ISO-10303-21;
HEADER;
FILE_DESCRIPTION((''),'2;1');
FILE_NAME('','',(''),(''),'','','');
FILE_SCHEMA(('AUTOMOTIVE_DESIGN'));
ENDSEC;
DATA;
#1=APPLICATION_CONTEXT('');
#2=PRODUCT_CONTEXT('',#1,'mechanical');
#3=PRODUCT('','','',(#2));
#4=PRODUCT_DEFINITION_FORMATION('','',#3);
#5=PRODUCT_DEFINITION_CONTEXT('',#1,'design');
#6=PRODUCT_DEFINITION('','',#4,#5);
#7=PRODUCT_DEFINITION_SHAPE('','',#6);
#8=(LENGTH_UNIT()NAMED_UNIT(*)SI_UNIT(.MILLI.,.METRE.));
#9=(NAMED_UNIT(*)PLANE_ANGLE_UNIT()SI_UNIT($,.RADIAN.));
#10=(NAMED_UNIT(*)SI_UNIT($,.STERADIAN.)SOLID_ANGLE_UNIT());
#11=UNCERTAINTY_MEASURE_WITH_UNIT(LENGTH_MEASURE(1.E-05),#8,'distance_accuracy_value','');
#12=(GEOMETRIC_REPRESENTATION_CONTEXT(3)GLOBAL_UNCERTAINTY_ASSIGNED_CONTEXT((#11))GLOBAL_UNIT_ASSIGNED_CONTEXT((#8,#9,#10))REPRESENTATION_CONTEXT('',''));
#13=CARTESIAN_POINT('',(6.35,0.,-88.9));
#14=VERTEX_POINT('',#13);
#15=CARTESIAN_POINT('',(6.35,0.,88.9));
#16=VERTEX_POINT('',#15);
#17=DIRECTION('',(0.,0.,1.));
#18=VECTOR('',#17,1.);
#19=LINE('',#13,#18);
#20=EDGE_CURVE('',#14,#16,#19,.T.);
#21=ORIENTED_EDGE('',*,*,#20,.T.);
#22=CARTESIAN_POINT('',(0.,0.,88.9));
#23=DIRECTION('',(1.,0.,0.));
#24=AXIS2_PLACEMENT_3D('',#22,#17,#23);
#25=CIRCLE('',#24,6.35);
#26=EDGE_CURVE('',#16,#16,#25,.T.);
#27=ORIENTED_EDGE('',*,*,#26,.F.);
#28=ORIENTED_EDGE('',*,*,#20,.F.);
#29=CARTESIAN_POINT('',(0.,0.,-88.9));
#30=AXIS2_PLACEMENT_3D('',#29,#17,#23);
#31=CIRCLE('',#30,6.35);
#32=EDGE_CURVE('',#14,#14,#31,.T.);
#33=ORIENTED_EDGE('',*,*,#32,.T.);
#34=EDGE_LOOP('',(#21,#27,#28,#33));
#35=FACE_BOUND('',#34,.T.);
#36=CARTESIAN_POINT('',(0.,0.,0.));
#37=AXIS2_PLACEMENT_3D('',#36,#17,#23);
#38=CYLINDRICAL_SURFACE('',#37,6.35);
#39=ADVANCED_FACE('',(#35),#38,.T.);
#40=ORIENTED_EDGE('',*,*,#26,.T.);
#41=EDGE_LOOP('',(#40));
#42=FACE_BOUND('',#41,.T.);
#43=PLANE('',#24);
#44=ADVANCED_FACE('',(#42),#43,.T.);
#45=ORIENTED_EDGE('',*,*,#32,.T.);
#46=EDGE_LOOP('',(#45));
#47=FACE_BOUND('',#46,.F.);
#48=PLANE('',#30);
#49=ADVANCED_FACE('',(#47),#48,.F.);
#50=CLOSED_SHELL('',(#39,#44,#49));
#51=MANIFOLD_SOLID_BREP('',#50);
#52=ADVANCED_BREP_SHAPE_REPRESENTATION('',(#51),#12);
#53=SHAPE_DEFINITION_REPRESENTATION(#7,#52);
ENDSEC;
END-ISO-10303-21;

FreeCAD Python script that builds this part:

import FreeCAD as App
import Part
import Sketcher
from FreeCAD import Vector
Q = App.Units.Quantity

doc = App.newDocument("Part")
body = doc.addObject("PartDesign::Body", "Body")

# Sketch on XY plane
sketch1 = body.newObject("Sketcher::SketchObject", "Sketch")
sketch1.AttachmentSupport = (doc.getObject("XY_Plane"), [""])
sketch1.MapMode = "FlatFace"
sketch1.addGeometry(Part.Circle(Vector(0, 0, 0), Vector(0, 0, 1), 6), False)
sketch1.addConstraint([
    Sketcher.Constraint("Coincident", 0, 3, -1, 1),
    Sketcher.Constraint("Diameter", 0, Q("0.5 in")),
])
pad1 = body.newObject("PartDesign::Pad", "Pad")
pad1.Profile = sketch1
pad1.Type = "TwoLengths"
pad1.Length = Q("3.5 in")
pad1.Length2 = Q("3.5 in")

doc.recompute()
